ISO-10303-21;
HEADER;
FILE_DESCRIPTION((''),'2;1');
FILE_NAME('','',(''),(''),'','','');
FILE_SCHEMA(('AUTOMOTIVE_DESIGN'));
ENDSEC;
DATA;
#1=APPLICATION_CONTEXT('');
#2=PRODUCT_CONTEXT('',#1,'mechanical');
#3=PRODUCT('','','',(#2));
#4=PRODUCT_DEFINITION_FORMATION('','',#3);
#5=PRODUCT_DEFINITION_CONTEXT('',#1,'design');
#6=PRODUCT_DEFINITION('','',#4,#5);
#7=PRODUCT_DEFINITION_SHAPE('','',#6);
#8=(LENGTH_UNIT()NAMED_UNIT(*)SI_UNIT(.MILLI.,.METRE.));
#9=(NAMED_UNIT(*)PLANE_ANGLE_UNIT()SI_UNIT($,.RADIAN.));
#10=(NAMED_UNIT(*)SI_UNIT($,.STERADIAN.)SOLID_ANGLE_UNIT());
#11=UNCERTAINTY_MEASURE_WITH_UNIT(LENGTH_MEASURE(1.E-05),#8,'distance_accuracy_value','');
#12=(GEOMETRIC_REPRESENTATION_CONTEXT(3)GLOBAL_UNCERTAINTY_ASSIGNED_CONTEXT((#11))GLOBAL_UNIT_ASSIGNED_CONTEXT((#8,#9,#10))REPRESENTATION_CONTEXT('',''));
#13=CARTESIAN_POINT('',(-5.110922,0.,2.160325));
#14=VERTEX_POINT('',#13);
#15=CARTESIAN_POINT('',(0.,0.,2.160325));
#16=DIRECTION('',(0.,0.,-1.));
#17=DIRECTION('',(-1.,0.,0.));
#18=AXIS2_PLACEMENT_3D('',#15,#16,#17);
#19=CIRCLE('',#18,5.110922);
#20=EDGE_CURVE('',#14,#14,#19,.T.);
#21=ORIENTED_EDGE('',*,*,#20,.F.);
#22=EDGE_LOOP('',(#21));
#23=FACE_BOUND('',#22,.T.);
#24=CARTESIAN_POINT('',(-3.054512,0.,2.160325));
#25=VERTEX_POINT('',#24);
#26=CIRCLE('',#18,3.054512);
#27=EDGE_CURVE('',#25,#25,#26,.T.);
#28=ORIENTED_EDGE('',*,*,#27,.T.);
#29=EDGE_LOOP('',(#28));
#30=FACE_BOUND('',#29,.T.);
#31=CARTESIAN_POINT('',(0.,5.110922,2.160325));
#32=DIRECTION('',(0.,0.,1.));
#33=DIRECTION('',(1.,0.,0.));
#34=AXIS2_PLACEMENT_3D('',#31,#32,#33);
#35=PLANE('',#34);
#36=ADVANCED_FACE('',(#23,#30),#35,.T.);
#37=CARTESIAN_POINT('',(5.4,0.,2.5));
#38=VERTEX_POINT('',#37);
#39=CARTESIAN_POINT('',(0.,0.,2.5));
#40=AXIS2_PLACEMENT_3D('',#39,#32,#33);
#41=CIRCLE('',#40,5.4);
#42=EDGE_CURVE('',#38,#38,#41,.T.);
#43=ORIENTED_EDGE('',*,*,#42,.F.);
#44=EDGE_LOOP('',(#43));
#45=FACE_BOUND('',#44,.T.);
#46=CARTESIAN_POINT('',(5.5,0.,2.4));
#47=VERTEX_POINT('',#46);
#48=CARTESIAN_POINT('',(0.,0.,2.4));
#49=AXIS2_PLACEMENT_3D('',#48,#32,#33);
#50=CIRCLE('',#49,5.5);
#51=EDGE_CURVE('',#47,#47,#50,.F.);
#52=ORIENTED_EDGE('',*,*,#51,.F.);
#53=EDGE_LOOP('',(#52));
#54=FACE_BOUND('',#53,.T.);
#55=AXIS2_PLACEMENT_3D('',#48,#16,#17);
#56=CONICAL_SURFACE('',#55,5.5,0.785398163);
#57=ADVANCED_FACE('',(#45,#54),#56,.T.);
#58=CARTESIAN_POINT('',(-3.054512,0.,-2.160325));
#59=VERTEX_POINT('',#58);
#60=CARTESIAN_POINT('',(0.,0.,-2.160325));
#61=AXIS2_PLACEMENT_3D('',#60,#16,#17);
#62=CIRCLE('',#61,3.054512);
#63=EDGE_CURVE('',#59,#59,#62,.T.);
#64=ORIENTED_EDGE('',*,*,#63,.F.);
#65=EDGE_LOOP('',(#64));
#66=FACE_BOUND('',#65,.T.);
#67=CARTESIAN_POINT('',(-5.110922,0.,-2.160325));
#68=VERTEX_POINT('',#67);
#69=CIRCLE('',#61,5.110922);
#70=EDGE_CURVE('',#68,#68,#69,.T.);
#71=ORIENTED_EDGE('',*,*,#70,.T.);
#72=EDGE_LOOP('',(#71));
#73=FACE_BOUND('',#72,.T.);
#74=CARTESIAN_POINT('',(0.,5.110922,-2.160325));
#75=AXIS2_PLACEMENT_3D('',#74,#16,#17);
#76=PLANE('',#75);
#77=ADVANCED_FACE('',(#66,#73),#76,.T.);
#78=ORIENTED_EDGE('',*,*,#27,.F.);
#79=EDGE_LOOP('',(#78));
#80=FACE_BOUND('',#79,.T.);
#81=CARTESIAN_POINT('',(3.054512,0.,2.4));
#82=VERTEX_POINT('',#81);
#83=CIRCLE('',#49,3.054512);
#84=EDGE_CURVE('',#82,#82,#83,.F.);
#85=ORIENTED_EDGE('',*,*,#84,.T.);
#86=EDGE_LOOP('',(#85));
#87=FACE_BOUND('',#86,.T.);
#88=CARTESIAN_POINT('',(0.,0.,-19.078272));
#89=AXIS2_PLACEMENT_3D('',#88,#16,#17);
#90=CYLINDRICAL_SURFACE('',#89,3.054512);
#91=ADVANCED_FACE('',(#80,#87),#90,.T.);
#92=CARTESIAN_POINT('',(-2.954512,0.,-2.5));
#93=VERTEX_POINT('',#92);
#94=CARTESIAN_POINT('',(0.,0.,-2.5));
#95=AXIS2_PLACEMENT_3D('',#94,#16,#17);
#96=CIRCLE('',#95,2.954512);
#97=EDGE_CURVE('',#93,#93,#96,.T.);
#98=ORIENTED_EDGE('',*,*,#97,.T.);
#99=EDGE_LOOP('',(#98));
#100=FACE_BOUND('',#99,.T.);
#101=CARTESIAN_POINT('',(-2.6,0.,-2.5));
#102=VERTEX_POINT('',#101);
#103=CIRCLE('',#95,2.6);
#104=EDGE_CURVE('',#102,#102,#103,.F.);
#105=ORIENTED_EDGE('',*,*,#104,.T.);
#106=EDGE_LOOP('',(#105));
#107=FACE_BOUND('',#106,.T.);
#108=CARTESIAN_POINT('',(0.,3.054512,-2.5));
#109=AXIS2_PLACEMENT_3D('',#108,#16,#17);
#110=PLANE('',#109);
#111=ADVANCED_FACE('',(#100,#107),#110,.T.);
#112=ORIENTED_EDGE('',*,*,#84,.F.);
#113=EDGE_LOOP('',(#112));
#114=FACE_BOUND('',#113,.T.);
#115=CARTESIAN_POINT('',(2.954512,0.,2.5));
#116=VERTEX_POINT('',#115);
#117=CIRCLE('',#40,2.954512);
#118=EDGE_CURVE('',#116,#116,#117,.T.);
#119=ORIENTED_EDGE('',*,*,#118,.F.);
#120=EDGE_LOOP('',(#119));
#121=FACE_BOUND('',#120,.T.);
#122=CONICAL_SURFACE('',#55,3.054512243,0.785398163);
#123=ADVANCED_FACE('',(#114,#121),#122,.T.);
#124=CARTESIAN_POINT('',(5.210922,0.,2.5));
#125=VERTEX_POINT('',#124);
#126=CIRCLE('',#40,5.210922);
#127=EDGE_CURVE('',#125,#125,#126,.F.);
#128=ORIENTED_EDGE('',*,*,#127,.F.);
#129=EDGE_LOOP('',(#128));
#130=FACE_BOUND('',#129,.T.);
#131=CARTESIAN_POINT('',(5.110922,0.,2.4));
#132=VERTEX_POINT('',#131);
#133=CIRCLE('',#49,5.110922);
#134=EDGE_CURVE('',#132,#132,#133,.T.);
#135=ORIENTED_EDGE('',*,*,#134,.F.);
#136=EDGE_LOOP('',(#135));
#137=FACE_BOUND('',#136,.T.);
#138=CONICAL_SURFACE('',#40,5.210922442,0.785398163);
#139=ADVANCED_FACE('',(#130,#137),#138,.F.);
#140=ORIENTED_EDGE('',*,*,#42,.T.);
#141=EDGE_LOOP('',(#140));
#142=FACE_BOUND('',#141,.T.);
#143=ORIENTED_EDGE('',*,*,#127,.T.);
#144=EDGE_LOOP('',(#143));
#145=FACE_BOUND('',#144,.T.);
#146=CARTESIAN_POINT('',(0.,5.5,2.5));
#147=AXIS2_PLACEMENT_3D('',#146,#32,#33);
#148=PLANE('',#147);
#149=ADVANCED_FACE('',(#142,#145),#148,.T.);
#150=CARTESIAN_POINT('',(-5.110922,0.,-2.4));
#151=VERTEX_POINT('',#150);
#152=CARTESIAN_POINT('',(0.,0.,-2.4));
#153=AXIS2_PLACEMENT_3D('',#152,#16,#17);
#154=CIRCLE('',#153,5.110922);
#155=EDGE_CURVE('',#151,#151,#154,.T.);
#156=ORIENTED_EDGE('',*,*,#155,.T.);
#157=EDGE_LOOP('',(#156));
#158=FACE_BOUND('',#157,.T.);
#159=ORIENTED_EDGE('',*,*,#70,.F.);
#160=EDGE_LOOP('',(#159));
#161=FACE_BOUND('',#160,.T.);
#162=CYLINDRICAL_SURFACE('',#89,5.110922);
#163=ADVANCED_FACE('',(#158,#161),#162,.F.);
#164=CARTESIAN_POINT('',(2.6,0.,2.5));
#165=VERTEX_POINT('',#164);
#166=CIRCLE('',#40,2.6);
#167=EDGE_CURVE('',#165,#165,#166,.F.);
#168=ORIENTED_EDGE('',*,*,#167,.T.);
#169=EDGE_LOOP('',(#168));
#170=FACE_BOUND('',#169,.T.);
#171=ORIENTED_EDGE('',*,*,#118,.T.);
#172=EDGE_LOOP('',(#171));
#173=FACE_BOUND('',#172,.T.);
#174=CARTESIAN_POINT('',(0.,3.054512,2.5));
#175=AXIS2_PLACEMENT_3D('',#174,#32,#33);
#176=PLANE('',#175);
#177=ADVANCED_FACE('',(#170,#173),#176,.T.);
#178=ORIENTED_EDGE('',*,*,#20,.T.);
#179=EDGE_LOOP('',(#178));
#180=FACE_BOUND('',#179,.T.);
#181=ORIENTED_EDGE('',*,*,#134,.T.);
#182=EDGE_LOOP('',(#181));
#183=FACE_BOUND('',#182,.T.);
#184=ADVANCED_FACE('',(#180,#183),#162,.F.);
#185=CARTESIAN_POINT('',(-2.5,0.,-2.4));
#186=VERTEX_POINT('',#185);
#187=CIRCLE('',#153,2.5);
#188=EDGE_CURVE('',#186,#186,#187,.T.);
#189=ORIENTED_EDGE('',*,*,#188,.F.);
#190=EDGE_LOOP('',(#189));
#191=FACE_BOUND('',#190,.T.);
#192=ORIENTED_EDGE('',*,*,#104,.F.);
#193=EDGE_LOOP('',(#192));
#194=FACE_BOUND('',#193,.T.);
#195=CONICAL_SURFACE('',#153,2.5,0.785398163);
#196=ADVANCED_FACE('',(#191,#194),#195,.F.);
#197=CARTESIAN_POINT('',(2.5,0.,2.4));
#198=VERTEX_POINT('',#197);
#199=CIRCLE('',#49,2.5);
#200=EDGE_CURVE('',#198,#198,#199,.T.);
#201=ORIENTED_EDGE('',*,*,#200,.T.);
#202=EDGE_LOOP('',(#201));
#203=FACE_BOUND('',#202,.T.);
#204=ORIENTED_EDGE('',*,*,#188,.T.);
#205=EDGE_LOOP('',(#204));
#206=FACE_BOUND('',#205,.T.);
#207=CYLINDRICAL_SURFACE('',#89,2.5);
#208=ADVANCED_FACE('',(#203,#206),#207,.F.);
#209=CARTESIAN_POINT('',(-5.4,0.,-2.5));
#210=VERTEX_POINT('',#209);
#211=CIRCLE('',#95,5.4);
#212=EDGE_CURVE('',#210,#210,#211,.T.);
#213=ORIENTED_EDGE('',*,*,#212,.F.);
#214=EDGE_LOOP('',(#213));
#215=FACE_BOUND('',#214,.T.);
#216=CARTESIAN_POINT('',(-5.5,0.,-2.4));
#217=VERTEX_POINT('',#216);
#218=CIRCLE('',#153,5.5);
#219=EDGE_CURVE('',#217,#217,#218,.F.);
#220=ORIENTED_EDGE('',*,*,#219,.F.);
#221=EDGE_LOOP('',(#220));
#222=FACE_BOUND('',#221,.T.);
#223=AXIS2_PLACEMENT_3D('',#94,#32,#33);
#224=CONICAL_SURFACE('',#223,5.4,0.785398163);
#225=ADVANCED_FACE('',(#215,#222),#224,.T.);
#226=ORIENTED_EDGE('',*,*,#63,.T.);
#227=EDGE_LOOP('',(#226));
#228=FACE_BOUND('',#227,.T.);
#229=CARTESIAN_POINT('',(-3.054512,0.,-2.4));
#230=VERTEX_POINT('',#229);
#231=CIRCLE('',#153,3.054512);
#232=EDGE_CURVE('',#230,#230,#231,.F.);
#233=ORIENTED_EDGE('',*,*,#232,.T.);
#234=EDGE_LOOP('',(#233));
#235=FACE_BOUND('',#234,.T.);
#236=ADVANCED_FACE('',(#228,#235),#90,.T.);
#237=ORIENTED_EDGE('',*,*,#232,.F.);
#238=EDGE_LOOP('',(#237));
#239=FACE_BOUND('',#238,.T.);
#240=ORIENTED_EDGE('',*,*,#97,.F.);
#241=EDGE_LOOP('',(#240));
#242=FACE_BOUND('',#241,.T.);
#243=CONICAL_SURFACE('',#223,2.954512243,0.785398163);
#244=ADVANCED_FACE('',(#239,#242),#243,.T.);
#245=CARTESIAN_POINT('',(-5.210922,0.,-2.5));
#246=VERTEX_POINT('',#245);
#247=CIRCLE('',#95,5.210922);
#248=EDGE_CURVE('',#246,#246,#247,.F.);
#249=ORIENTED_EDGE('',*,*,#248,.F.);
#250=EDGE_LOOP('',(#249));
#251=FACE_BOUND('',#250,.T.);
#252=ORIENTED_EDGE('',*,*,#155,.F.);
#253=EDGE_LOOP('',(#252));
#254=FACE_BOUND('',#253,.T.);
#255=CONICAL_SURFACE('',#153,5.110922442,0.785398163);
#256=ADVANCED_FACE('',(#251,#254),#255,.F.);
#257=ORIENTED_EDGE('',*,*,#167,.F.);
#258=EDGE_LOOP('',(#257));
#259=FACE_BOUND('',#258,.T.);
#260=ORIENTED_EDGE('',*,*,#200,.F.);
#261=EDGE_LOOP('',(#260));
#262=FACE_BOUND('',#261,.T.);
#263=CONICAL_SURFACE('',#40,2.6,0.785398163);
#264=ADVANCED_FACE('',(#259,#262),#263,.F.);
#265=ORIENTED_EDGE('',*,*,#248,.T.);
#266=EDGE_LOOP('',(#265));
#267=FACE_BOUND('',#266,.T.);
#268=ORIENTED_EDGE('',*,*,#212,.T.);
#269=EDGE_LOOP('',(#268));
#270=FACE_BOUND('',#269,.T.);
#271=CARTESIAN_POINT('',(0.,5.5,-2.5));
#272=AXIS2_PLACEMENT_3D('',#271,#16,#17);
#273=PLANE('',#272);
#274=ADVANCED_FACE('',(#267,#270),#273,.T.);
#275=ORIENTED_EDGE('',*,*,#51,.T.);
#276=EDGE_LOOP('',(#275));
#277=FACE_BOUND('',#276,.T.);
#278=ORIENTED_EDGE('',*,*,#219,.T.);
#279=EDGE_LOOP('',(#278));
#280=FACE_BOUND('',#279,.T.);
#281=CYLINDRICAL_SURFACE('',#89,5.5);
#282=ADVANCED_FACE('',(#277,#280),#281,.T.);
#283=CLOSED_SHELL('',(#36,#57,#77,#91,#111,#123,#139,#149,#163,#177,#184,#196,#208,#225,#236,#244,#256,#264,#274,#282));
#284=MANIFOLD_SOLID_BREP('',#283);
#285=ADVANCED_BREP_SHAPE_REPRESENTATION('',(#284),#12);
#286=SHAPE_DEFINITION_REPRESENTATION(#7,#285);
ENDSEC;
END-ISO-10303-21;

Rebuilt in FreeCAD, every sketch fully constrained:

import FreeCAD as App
import Part
import Sketcher
from FreeCAD import Vector
Q = App.Units.Quantity


def edges_at(feature, points):
    """Names of the edges that pass closest to the given points."""
    edges = feature.Shape.Edges
    near = lambda p: min(range(len(edges)), key=lambda i: edges[i].distToShape(Part.Vertex(*p))[0])
    return sorted({f"Edge{near(p) + 1}" for p in points})

doc = App.newDocument("Part")
body = doc.addObject("PartDesign::Body", "Body")

# Sketch on YZ plane
sketch1 = body.newObject("Sketcher::SketchObject", "Sketch")
sketch1.AttachmentSupport = (doc.getObject("YZ_Plane"), [""])
sketch1.MapMode = "FlatFace"
sketch1.addGeometry(Part.LineSegment(Vector(5.5, -2.5, 0), Vector(5.5, 2.5, 0)), False)
sketch1.addGeometry(Part.LineSegment(Vector(5.5, 2.5, 0), Vector(5.110922, 2.5, 0)), False)
sketch1.addGeometry(Part.LineSegment(Vector(5.110922, 2.5, 0), Vector(5.110922, 2.160325, 0)), False)
sketch1.addGeometry(Part.LineSegment(Vector(5.110922, 2.160325, 0), Vector(3.054512, 2.160325, 0)), False)
sketch1.addGeometry(Part.LineSegment(Vector(3.054512, 2.160325, 0), Vector(3.054512, 2.5, 0)), False)
sketch1.addGeometry(Part.LineSegment(Vector(3.054512, 2.5, 0), Vector(2.5, 2.5, 0)), False)
sketch1.addGeometry(Part.LineSegment(Vector(2.5, 2.5, 0), Vector(2.5, -2.5, 0)), False)
sketch1.addGeometry(Part.LineSegment(Vector(2.5, -2.5, 0), Vector(3.054512, -2.5, 0)), False)
sketch1.addGeometry(Part.LineSegment(Vector(3.054512, -2.5, 0), Vector(3.054512, -2.160325, 0)), False)
sketch1.addGeometry(Part.LineSegment(Vector(3.054512, -2.160325, 0), Vector(5.110922, -2.160325, 0)), False)
sketch1.addGeometry(Part.LineSegment(Vector(5.110922, -2.160325, 0), Vector(5.110922, -2.5, 0)), False)
sketch1.addGeometry(Part.LineSegment(Vector(5.110922, -2.5, 0), Vector(5.5, -2.5, 0)), False)
sketch1.addConstraint(Sketcher.Constraint("Coincident", 0, 2, 1, 1))
sketch1.addConstraint(Sketcher.Constraint("Coincident", 1, 2, 2, 1))
sketch1.addConstraint(Sketcher.Constraint("Coincident", 2, 2, 3, 1))
sketch1.addConstraint(Sketcher.Constraint("Coincident", 3, 2, 4, 1))
sketch1.addConstraint(Sketcher.Constraint("Coincident", 4, 2, 5, 1))
sketch1.addConstraint(Sketcher.Constraint("Coincident", 5, 2, 6, 1))
sketch1.addConstraint(Sketcher.Constraint("Coincident", 6, 2, 7, 1))
sketch1.addConstraint(Sketcher.Constraint("Coincident", 7, 2, 8, 1))
sketch1.addConstraint(Sketcher.Constraint("Coincident", 8, 2, 9, 1))
sketch1.addConstraint(Sketcher.Constraint("Coincident", 9, 2, 10, 1))
sketch1.addConstraint(Sketcher.Constraint("Coincident", 10, 2, 11, 1))
sketch1.addConstraint(Sketcher.Constraint("Coincident", 11, 2, 0, 1))
sketch1.addConstraint(Sketcher.Constraint("Vertical", 0))
sketch1.addConstraint(Sketcher.Constraint("Horizontal", 1))
sketch1.addConstraint(Sketcher.Constraint("Vertical", 2))
sketch1.addConstraint(Sketcher.Constraint("Horizontal", 3))
sketch1.addConstraint(Sketcher.Constraint("Vertical", 4))
sketch1.addConstraint(Sketcher.Constraint("Horizontal", 5))
sketch1.addConstraint(Sketcher.Constraint("Vertical", 6))
sketch1.addConstraint(Sketcher.Constraint("Horizontal", 7))
sketch1.addConstraint(Sketcher.Constraint("Vertical", 8))
sketch1.addConstraint(Sketcher.Constraint("Horizontal", 9))
sketch1.addConstraint(Sketcher.Constraint("Vertical", 10))
sketch1.addConstraint(Sketcher.Constraint("Horizontal", 11))
sketch1.addConstraint(Sketcher.Constraint("Symmetric", 4, 2, 7, 2, -1))
sketch1.addConstraint(Sketcher.Constraint("Symmetric", 2, 2, 9, 2, -1))
sketch1.addConstraint(Sketcher.Constraint("Horizontal", 1, 2, 4, 2))
sketch1.addConstraint(Sketcher.Constraint("Horizontal", 7, 2, 10, 2))
sketch1.addConstraint(Sketcher.Constraint("DistanceY", 0, 1, 0, 2, Q("5 mm")))
sketch1.addConstraint(Sketcher.Constraint("DistanceX", 5, 2, 0, 2, Q("3 mm")))
sketch1.addConstraint(Sketcher.Constraint("DistanceX", -1, 1, 0, 2, Q("5.5 mm")))
sketch1.addConstraint(Sketcher.Constraint("DistanceX", 3, 2, 3, 1, Q("2.05641 mm")))
sketch1.addConstraint(Sketcher.Constraint("DistanceX", 1, 2, 1, 1, Q("0.389078 mm")))
sketch1.addConstraint(Sketcher.Constraint("DistanceY", 2, 2, 2, 1, Q("0.339675 mm")))
revolution = body.newObject("PartDesign::Revolution", "Revolution")
revolution.Profile = sketch1
revolution.ReferenceAxis = (sketch1, ["V_Axis"])
revolution.Angle = 360
doc.recompute()

chamfer = body.newObject("PartDesign::Chamfer", "Chamfer")
chamfer.Base = (revolution, edges_at(revolution, [
    (5.111, 0, 2.5),
    (5.5, 0, 2.5),
    (5.5, 0, -2.5),
    (5.111, 0, -2.5),
    (3.055, 0, -2.5),
    (2.5, 0, -2.5),
    (2.5, 0, 2.5),
    (3.055, 0, 2.5),
]))
chamfer.Size = 0.1

doc.recompute()
